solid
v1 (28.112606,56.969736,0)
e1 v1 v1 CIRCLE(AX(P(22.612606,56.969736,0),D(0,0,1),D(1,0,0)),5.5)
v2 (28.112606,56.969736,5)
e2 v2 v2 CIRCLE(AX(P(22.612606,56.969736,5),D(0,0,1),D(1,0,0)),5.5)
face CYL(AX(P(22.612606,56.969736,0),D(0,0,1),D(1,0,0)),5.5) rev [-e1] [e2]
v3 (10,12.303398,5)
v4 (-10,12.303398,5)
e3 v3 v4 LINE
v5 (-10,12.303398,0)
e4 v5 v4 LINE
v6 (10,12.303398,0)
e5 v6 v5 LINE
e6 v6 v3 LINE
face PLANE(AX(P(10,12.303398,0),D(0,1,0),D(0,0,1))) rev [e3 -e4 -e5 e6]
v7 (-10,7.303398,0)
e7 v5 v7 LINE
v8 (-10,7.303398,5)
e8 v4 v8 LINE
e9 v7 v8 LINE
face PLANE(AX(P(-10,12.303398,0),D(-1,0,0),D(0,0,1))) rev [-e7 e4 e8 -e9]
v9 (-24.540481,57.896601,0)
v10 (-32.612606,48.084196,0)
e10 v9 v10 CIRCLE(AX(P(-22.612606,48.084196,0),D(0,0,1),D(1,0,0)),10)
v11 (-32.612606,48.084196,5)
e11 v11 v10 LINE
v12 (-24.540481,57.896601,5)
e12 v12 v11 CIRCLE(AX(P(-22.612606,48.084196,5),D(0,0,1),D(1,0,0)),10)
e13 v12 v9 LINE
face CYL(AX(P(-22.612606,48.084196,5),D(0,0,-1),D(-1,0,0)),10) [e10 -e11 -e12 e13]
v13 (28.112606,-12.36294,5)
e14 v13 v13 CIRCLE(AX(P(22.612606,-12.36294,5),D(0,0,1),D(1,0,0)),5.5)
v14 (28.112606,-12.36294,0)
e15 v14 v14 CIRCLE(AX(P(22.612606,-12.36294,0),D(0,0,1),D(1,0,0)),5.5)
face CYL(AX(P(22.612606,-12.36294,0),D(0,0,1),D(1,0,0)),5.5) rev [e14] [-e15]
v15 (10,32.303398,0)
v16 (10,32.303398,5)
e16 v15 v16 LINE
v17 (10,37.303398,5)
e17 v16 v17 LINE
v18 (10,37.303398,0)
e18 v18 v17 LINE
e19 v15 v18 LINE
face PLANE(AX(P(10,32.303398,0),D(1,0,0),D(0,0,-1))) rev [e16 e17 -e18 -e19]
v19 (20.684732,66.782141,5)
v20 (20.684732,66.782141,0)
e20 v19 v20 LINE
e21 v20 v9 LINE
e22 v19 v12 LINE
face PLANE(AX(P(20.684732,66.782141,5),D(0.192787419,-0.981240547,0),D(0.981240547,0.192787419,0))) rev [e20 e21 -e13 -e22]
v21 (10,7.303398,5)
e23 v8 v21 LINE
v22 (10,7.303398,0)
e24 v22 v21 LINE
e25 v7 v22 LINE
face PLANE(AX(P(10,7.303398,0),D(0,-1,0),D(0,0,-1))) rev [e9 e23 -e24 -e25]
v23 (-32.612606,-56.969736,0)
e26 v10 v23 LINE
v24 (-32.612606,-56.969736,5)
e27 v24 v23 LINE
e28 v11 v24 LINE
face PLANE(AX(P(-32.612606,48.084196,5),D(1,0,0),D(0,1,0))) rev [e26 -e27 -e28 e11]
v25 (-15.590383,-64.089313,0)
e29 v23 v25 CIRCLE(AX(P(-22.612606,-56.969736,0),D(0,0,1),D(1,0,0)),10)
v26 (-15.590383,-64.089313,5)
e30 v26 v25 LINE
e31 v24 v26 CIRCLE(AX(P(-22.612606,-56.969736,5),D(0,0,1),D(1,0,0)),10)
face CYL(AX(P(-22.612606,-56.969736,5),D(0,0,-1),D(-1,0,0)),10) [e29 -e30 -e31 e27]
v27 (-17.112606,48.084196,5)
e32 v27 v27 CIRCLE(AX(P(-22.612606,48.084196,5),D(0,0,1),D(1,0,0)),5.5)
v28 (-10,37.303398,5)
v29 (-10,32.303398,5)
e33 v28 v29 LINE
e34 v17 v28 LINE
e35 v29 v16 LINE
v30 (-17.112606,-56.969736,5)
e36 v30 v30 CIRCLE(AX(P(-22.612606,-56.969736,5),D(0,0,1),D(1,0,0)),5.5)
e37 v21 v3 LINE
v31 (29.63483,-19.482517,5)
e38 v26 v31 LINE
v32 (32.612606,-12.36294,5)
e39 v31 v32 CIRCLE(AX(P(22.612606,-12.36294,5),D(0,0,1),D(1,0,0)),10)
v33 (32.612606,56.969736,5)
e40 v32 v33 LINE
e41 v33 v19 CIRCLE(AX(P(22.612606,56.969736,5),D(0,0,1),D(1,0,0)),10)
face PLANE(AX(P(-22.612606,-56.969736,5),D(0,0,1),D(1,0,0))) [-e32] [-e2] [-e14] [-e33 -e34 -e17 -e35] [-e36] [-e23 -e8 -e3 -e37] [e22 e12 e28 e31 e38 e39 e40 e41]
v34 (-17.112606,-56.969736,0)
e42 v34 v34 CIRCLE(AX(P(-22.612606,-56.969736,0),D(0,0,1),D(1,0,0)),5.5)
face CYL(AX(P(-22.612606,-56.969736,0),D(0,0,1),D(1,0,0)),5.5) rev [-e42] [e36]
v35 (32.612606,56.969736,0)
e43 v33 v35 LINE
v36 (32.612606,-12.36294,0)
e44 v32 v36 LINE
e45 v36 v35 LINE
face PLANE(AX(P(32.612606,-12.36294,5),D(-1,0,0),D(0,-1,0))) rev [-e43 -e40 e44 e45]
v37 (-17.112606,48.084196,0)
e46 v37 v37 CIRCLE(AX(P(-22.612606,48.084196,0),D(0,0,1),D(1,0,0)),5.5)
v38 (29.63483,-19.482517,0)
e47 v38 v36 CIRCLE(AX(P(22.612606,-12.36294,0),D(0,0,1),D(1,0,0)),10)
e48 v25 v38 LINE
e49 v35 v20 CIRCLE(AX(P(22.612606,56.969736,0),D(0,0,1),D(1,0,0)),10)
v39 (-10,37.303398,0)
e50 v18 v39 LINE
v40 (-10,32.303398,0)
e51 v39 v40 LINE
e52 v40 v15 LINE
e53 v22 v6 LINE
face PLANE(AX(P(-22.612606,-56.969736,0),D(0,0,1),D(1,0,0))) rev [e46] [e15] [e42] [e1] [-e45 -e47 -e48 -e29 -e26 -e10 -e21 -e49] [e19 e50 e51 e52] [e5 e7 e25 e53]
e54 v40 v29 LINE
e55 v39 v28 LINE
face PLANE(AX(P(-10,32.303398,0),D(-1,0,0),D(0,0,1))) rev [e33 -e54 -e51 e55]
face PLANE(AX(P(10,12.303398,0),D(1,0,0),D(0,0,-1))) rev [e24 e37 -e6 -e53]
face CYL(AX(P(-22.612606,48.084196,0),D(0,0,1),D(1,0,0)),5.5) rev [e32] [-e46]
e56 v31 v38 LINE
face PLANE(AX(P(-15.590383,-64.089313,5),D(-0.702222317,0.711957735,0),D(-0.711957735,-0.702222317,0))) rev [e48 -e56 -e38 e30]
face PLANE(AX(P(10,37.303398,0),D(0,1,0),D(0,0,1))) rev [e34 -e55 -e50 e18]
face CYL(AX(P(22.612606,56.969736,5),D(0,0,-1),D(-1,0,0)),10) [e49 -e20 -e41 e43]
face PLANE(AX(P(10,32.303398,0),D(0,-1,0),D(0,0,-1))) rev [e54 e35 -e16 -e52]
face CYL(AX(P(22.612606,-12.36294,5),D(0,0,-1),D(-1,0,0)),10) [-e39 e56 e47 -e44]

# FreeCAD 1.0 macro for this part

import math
import FreeCAD as App
import Part
import Sketcher

V = App.Vector

doc = App.newDocument("Part")
body = doc.addObject("PartDesign::Body", "Body")

# Sketch on XY plane
sketch1 = doc.addObject("Sketcher::SketchObject", "Sketch")
body.addObject(sketch1)
sketch1.AttachmentSupport = (doc.XY_Plane, [""])
sketch1.MapMode = "FlatFace"
sketch1.addGeometry([
    Part.LineSegment(V(-15.590383, -64.089313, 0), V(29.63483, -19.482517, 0)),  # 0
    Part.ArcOfCircle(Part.Circle(V(22.612606, -12.36294, 0), V(0, 0, 1), 10), math.radians(-45.394426), math.radians(0)),  # 1
    Part.LineSegment(V(32.612606, -12.36294, 0), V(32.612606, 56.969736, 0)),  # 2
    Part.ArcOfCircle(Part.Circle(V(22.612606, 56.969736, 0), V(0, 0, 1), 10), math.radians(0), math.radians(101.1155)),  # 3
    Part.LineSegment(V(20.684732, 66.782141, 0), V(-24.540481, 57.896601, 0)),  # 4
    Part.ArcOfCircle(Part.Circle(V(-22.612606, 48.084196, 0), V(0, 0, 1), 10), math.radians(101.1155), math.radians(180)),  # 5
    Part.LineSegment(V(-32.612606, 48.084196, 0), V(-32.612606, -56.969736, 0)),  # 6
    Part.ArcOfCircle(Part.Circle(V(-22.612606, -56.969736, 0), V(0, 0, 1), 10), math.radians(180), math.radians(314.605574)),  # 7
], False)
sketch1.addConstraint([
    Sketcher.Constraint("Coincident", 0, 2, 1, 1),
    Sketcher.Constraint("Coincident", 1, 2, 2, 1),
    Sketcher.Constraint("Coincident", 2, 2, 3, 1),
    Sketcher.Constraint("Coincident", 3, 2, 4, 1),
    Sketcher.Constraint("Coincident", 4, 2, 5, 1),
    Sketcher.Constraint("Coincident", 5, 2, 6, 1),
    Sketcher.Constraint("Coincident", 6, 2, 7, 1),
    Sketcher.Constraint("Coincident", 7, 2, 0, 1),
    Sketcher.Constraint("Vertical", 2),
    Sketcher.Constraint("Vertical", 6),
    Sketcher.Constraint("Radius", 1, 10.0),
    Sketcher.Constraint("Radius", 3, 10.0),
    Sketcher.Constraint("Radius", 5, 10.0),
    Sketcher.Constraint("Radius", 7, 10.0),
    Sketcher.Constraint("DistanceY", 6, 2, 6, 1, 105.053932),
    Sketcher.Constraint("DistanceY", -1, 1, 4, 2, 57.896601),
    Sketcher.Constraint("DistanceY", 2, 1, 2, 2, 69.332675),
    Sketcher.Constraint("DistanceY", 1, 3, -1, 1, 12.36294),
    Sketcher.Constraint("DistanceX", -1, 1, 0, 2, 29.63483),
    Sketcher.Constraint("DistanceY", 1, 2, -1, 1, 12.36294),
    Sketcher.Constraint("DistanceY", -1, 1, 3, 2, 66.782141),
    Sketcher.Constraint("DistanceX", 4, 2, -1, 1, 24.540481),
    Sketcher.Constraint("DistanceY", 5, 3, 3, 3, 8.88554),
    Sketcher.Constraint("DistanceY", 7, 3, 5, 3, 105.053932),
    Sketcher.Constraint("DistanceY", 7, 3, 0, 2, 37.487219),
    Sketcher.Constraint("DistanceY", 5, 3, 2, 2, 8.88554),
    Sketcher.Constraint("DistanceY", 5, 2, 3, 3, 8.88554),
    Sketcher.Constraint("DistanceX", 7, 2, 1, 3, 38.202989),
])
pad1 = doc.addObject("PartDesign::Pad", "Pad")
body.addObject(pad1)
pad1.Profile = sketch1
pad1.Length = 5

# Sketch on XY plane
sketch2 = doc.addObject("Sketcher::SketchObject", "Sketch001")
body.addObject(sketch2)
sketch2.AttachmentSupport = (doc.XY_Plane, [""])
sketch2.MapMode = "FlatFace"
sketch2.AttachmentOffset = App.Placement(V(0, 0, 5), App.Rotation())
sketch2.addGeometry([
    Part.LineSegment(V(-10, 37, 0), V(-10, 32, 0)),  # 0
    Part.LineSegment(V(-10, 32, 0), V(10, 32, 0)),  # 1
    Part.LineSegment(V(10, 32, 0), V(10, 37, 0)),  # 2
    Part.LineSegment(V(10, 37, 0), V(-10, 37, 0)),  # 3
    Part.LineSegment(V(-10, 12, 0), V(-10, 7, 0)),  # 4
    Part.LineSegment(V(-10, 7, 0), V(10, 7, 0)),  # 5
    Part.LineSegment(V(10, 7, 0), V(10, 12, 0)),  # 6
    Part.LineSegment(V(10, 12, 0), V(-10, 12, 0)),  # 7
], False)
sketch2.addConstraint([
    Sketcher.Constraint("Coincident", 0, 2, 1, 1),
    Sketcher.Constraint("Coincident", 1, 2, 2, 1),
    Sketcher.Constraint("Coincident", 2, 2, 3, 1),
    Sketcher.Constraint("Coincident", 3, 2, 0, 1),
    Sketcher.Constraint("Coincident", 4, 2, 5, 1),
    Sketcher.Constraint("Coincident", 5, 2, 6, 1),
    Sketcher.Constraint("Coincident", 6, 2, 7, 1),
    Sketcher.Constraint("Coincident", 7, 2, 4, 1),
    Sketcher.Constraint("Vertical", 0),
    Sketcher.Constraint("Horizontal", 1),
    Sketcher.Constraint("Vertical", 2),
    Sketcher.Constraint("Horizontal", 3),
    Sketcher.Constraint("Vertical", 4),
    Sketcher.Constraint("Horizontal", 5),
    Sketcher.Constraint("Vertical", 6),
    Sketcher.Constraint("Horizontal", 7),
    Sketcher.Constraint("Vertical", 3, 2, 4, 2),
    Sketcher.Constraint("Vertical", 2, 2, 5, 2),
    Sketcher.Constraint("Equal", 2, 4),
    Sketcher.Constraint("DistanceX", 1, 1, 1, 2, 20.0),
    Sketcher.Constraint("DistanceY", 0, 2, 0, 1, 5.0),
    Sketcher.Constraint("DistanceX", 0, 2, -1, 1, 10.0),
    Sketcher.Constraint("DistanceY", 4, 2, 0, 2, 25.0),
    Sketcher.Constraint("DistanceY", -1, 1, 0, 2, 32.303398),
])
pocket1 = doc.addObject("PartDesign::Pocket", "Pocket")
body.addObject(pocket1)
pocket1.Profile = sketch2
pocket1.Type = "ThroughAll"

# Sketch on XY plane
sketch3 = doc.addObject("Sketcher::SketchObject", "Sketch002")
body.addObject(sketch3)
sketch3.AttachmentSupport = (doc.XY_Plane, [""])
sketch3.MapMode = "FlatFace"
sketch3.AttachmentOffset = App.Placement(V(0, 0, 5), App.Rotation())
sketch3.addGeometry([
    Part.Circle(V(23, 57, 0), V(0, 0, 1), 6),
    Part.Circle(V(-23, -57, 0), V(0, 0, 1), 6),
    Part.Circle(V(-23, 48, 0), V(0, 0, 1), 6),
    Part.Circle(V(23, -12, 0), V(0, 0, 1), 6),
], False)
sketch3.addConstraint([
    Sketcher.Constraint("Equal", 0, 1),
    Sketcher.Constraint("Equal", 1, 2),
    Sketcher.Constraint("Equal", 2, 3),
    Sketcher.Constraint("Symmetric", 0, 3, 1, 3, -1, 1),
    Sketcher.Constraint("Vertical", 1, 3, 2, 3),
    Sketcher.Constraint("Vertical", 0, 3, 3, 3),
    Sketcher.Constraint("Diameter", 0, 11.0),
    Sketcher.Constraint("DistanceY", 3, 3, -1, 1, 12.36294),
    Sketcher.Constraint("DistanceY", 1, 3, 0, 3, 113.939472),
    Sketcher.Constraint("DistanceY", 2, 3, 0, 3, 8.88554),
    Sketcher.Constraint("DistanceX", -1, 1, 0, 3, 22.612606),
])
pocket2 = doc.addObject("PartDesign::Pocket", "Pocket001")
body.addObject(pocket2)
pocket2.Profile = sketch3
pocket2.Type = "ThroughAll"

doc.recompute()
